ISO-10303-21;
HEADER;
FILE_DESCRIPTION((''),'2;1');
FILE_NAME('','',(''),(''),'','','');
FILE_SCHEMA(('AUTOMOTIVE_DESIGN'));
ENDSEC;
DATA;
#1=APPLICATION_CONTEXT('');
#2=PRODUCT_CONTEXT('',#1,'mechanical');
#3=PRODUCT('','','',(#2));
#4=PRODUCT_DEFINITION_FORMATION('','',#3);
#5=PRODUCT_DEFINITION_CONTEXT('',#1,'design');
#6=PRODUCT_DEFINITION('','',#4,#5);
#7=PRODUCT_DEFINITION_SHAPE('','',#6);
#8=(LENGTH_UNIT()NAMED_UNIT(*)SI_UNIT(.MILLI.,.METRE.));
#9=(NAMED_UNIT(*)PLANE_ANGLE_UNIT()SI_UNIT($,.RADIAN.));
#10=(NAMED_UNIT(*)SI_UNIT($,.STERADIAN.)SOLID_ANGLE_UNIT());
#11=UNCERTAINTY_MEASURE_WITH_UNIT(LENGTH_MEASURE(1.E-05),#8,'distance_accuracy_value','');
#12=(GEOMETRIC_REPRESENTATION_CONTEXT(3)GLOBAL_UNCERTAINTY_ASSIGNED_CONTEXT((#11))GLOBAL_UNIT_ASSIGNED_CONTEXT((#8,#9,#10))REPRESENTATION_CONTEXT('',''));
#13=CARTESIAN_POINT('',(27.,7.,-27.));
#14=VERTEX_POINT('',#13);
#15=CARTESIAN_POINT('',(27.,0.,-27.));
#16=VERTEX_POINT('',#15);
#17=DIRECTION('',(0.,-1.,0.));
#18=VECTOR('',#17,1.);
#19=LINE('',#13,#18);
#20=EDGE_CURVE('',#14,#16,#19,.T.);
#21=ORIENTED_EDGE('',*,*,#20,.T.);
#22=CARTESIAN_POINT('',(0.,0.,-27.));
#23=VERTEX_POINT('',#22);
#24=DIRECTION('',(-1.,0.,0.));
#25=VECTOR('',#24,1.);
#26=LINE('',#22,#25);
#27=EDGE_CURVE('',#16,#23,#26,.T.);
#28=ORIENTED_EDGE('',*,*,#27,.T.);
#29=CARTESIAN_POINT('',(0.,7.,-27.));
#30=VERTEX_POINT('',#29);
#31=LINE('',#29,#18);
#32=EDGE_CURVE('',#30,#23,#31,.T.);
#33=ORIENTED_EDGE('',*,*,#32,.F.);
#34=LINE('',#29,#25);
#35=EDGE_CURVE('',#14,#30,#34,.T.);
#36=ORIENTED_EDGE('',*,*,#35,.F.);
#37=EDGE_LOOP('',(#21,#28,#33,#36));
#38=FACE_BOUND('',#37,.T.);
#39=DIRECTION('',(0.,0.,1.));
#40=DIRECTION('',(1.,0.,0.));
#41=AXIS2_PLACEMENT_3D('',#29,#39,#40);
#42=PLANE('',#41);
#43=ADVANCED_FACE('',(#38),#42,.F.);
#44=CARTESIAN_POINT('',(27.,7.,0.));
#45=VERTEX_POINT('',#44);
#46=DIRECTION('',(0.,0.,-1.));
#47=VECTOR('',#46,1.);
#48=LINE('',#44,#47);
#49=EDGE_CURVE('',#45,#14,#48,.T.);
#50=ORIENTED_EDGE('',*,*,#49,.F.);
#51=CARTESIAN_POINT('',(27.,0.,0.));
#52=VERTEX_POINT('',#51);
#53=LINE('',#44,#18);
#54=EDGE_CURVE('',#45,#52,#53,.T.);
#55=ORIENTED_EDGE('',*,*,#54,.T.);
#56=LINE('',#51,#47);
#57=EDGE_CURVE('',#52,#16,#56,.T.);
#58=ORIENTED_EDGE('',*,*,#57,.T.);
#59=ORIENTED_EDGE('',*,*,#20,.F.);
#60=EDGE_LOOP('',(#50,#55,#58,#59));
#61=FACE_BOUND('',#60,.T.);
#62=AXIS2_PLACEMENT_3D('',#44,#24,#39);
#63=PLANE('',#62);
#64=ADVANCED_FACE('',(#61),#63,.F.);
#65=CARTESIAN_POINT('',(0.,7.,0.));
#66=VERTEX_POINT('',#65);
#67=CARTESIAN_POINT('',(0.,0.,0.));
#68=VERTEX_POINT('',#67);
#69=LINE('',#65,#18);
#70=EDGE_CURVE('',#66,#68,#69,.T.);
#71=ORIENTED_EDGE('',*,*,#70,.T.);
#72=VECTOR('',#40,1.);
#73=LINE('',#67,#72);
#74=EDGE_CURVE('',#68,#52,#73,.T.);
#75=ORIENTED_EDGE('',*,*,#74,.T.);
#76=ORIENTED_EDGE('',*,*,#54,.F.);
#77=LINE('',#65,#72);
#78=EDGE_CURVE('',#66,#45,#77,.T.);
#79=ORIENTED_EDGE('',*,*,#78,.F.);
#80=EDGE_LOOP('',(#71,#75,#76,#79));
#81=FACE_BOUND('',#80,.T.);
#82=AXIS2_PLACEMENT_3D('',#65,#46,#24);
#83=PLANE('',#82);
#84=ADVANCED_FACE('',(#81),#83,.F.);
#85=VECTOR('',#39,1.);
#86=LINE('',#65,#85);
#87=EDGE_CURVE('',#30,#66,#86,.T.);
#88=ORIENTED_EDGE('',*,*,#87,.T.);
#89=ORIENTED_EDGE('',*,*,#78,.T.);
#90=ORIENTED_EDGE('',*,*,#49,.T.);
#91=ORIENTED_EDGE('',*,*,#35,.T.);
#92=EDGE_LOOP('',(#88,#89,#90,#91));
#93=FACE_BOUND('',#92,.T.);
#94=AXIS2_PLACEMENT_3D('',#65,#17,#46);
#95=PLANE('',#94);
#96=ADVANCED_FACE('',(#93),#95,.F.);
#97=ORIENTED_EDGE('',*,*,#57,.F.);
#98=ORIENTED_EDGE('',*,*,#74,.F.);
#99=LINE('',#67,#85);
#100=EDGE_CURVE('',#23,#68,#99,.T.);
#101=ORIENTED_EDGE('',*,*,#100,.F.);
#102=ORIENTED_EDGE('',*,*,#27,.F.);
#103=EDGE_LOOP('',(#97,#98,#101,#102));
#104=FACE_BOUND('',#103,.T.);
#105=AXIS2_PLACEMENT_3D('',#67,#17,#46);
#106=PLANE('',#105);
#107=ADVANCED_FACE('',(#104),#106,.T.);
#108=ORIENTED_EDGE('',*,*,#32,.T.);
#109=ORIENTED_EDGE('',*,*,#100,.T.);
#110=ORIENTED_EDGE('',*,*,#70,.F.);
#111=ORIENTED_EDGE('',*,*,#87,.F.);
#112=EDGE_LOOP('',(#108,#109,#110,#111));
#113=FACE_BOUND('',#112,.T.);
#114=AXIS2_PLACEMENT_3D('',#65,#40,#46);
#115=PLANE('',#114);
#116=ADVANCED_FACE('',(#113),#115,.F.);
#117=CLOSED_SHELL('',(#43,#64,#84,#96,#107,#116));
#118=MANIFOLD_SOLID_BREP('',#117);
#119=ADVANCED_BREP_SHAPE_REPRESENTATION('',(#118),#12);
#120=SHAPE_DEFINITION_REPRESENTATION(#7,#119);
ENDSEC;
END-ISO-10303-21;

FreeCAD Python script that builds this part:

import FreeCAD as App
import Part
import Sketcher

V = App.Vector

doc = App.newDocument("Part")
body = doc.addObject("PartDesign::Body", "Body")

sketch1 = body.newObject("Sketcher::SketchObject", "Sketch")
sketch1.AttachmentSupport = (doc.getObject("XZ_Plane"), [""])
sketch1.MapMode = "FlatFace"
sketch1.addGeometry([
    Part.LineSegment(V(0, -27, 0), V(0, 0, 0)),
    Part.LineSegment(V(0, 0, 0), V(27, 0, 0)),
    Part.LineSegment(V(27, 0, 0), V(27, -27, 0)),
    Part.LineSegment(V(27, -27, 0), V(0, -27, 0)),
], False)
sketch1.addConstraint([
    Sketcher.Constraint("Coincident", 0, 2, 1, 1),
    Sketcher.Constraint("Coincident", 1, 2, 2, 1),
    Sketcher.Constraint("Coincident", 2, 2, 3, 1),
    Sketcher.Constraint("Coincident", 3, 2, 0, 1),
    Sketcher.Constraint("Vertical", 0),
    Sketcher.Constraint("Horizontal", 1),
    Sketcher.Constraint("Vertical", 2),
    Sketcher.Constraint("Horizontal", 3),
    Sketcher.Constraint("Coincident", 0, 2, -1, 1),
    Sketcher.Constraint("Equal", 3, 0),
    Sketcher.Constraint("DistanceX", 1, 1, 1, 2, 27.0),
])
pad1 = body.newObject("PartDesign::Pad", "Pad")
pad1.Profile = sketch1
pad1.Length = 7
pad1.Reversed = True

doc.recompute()
